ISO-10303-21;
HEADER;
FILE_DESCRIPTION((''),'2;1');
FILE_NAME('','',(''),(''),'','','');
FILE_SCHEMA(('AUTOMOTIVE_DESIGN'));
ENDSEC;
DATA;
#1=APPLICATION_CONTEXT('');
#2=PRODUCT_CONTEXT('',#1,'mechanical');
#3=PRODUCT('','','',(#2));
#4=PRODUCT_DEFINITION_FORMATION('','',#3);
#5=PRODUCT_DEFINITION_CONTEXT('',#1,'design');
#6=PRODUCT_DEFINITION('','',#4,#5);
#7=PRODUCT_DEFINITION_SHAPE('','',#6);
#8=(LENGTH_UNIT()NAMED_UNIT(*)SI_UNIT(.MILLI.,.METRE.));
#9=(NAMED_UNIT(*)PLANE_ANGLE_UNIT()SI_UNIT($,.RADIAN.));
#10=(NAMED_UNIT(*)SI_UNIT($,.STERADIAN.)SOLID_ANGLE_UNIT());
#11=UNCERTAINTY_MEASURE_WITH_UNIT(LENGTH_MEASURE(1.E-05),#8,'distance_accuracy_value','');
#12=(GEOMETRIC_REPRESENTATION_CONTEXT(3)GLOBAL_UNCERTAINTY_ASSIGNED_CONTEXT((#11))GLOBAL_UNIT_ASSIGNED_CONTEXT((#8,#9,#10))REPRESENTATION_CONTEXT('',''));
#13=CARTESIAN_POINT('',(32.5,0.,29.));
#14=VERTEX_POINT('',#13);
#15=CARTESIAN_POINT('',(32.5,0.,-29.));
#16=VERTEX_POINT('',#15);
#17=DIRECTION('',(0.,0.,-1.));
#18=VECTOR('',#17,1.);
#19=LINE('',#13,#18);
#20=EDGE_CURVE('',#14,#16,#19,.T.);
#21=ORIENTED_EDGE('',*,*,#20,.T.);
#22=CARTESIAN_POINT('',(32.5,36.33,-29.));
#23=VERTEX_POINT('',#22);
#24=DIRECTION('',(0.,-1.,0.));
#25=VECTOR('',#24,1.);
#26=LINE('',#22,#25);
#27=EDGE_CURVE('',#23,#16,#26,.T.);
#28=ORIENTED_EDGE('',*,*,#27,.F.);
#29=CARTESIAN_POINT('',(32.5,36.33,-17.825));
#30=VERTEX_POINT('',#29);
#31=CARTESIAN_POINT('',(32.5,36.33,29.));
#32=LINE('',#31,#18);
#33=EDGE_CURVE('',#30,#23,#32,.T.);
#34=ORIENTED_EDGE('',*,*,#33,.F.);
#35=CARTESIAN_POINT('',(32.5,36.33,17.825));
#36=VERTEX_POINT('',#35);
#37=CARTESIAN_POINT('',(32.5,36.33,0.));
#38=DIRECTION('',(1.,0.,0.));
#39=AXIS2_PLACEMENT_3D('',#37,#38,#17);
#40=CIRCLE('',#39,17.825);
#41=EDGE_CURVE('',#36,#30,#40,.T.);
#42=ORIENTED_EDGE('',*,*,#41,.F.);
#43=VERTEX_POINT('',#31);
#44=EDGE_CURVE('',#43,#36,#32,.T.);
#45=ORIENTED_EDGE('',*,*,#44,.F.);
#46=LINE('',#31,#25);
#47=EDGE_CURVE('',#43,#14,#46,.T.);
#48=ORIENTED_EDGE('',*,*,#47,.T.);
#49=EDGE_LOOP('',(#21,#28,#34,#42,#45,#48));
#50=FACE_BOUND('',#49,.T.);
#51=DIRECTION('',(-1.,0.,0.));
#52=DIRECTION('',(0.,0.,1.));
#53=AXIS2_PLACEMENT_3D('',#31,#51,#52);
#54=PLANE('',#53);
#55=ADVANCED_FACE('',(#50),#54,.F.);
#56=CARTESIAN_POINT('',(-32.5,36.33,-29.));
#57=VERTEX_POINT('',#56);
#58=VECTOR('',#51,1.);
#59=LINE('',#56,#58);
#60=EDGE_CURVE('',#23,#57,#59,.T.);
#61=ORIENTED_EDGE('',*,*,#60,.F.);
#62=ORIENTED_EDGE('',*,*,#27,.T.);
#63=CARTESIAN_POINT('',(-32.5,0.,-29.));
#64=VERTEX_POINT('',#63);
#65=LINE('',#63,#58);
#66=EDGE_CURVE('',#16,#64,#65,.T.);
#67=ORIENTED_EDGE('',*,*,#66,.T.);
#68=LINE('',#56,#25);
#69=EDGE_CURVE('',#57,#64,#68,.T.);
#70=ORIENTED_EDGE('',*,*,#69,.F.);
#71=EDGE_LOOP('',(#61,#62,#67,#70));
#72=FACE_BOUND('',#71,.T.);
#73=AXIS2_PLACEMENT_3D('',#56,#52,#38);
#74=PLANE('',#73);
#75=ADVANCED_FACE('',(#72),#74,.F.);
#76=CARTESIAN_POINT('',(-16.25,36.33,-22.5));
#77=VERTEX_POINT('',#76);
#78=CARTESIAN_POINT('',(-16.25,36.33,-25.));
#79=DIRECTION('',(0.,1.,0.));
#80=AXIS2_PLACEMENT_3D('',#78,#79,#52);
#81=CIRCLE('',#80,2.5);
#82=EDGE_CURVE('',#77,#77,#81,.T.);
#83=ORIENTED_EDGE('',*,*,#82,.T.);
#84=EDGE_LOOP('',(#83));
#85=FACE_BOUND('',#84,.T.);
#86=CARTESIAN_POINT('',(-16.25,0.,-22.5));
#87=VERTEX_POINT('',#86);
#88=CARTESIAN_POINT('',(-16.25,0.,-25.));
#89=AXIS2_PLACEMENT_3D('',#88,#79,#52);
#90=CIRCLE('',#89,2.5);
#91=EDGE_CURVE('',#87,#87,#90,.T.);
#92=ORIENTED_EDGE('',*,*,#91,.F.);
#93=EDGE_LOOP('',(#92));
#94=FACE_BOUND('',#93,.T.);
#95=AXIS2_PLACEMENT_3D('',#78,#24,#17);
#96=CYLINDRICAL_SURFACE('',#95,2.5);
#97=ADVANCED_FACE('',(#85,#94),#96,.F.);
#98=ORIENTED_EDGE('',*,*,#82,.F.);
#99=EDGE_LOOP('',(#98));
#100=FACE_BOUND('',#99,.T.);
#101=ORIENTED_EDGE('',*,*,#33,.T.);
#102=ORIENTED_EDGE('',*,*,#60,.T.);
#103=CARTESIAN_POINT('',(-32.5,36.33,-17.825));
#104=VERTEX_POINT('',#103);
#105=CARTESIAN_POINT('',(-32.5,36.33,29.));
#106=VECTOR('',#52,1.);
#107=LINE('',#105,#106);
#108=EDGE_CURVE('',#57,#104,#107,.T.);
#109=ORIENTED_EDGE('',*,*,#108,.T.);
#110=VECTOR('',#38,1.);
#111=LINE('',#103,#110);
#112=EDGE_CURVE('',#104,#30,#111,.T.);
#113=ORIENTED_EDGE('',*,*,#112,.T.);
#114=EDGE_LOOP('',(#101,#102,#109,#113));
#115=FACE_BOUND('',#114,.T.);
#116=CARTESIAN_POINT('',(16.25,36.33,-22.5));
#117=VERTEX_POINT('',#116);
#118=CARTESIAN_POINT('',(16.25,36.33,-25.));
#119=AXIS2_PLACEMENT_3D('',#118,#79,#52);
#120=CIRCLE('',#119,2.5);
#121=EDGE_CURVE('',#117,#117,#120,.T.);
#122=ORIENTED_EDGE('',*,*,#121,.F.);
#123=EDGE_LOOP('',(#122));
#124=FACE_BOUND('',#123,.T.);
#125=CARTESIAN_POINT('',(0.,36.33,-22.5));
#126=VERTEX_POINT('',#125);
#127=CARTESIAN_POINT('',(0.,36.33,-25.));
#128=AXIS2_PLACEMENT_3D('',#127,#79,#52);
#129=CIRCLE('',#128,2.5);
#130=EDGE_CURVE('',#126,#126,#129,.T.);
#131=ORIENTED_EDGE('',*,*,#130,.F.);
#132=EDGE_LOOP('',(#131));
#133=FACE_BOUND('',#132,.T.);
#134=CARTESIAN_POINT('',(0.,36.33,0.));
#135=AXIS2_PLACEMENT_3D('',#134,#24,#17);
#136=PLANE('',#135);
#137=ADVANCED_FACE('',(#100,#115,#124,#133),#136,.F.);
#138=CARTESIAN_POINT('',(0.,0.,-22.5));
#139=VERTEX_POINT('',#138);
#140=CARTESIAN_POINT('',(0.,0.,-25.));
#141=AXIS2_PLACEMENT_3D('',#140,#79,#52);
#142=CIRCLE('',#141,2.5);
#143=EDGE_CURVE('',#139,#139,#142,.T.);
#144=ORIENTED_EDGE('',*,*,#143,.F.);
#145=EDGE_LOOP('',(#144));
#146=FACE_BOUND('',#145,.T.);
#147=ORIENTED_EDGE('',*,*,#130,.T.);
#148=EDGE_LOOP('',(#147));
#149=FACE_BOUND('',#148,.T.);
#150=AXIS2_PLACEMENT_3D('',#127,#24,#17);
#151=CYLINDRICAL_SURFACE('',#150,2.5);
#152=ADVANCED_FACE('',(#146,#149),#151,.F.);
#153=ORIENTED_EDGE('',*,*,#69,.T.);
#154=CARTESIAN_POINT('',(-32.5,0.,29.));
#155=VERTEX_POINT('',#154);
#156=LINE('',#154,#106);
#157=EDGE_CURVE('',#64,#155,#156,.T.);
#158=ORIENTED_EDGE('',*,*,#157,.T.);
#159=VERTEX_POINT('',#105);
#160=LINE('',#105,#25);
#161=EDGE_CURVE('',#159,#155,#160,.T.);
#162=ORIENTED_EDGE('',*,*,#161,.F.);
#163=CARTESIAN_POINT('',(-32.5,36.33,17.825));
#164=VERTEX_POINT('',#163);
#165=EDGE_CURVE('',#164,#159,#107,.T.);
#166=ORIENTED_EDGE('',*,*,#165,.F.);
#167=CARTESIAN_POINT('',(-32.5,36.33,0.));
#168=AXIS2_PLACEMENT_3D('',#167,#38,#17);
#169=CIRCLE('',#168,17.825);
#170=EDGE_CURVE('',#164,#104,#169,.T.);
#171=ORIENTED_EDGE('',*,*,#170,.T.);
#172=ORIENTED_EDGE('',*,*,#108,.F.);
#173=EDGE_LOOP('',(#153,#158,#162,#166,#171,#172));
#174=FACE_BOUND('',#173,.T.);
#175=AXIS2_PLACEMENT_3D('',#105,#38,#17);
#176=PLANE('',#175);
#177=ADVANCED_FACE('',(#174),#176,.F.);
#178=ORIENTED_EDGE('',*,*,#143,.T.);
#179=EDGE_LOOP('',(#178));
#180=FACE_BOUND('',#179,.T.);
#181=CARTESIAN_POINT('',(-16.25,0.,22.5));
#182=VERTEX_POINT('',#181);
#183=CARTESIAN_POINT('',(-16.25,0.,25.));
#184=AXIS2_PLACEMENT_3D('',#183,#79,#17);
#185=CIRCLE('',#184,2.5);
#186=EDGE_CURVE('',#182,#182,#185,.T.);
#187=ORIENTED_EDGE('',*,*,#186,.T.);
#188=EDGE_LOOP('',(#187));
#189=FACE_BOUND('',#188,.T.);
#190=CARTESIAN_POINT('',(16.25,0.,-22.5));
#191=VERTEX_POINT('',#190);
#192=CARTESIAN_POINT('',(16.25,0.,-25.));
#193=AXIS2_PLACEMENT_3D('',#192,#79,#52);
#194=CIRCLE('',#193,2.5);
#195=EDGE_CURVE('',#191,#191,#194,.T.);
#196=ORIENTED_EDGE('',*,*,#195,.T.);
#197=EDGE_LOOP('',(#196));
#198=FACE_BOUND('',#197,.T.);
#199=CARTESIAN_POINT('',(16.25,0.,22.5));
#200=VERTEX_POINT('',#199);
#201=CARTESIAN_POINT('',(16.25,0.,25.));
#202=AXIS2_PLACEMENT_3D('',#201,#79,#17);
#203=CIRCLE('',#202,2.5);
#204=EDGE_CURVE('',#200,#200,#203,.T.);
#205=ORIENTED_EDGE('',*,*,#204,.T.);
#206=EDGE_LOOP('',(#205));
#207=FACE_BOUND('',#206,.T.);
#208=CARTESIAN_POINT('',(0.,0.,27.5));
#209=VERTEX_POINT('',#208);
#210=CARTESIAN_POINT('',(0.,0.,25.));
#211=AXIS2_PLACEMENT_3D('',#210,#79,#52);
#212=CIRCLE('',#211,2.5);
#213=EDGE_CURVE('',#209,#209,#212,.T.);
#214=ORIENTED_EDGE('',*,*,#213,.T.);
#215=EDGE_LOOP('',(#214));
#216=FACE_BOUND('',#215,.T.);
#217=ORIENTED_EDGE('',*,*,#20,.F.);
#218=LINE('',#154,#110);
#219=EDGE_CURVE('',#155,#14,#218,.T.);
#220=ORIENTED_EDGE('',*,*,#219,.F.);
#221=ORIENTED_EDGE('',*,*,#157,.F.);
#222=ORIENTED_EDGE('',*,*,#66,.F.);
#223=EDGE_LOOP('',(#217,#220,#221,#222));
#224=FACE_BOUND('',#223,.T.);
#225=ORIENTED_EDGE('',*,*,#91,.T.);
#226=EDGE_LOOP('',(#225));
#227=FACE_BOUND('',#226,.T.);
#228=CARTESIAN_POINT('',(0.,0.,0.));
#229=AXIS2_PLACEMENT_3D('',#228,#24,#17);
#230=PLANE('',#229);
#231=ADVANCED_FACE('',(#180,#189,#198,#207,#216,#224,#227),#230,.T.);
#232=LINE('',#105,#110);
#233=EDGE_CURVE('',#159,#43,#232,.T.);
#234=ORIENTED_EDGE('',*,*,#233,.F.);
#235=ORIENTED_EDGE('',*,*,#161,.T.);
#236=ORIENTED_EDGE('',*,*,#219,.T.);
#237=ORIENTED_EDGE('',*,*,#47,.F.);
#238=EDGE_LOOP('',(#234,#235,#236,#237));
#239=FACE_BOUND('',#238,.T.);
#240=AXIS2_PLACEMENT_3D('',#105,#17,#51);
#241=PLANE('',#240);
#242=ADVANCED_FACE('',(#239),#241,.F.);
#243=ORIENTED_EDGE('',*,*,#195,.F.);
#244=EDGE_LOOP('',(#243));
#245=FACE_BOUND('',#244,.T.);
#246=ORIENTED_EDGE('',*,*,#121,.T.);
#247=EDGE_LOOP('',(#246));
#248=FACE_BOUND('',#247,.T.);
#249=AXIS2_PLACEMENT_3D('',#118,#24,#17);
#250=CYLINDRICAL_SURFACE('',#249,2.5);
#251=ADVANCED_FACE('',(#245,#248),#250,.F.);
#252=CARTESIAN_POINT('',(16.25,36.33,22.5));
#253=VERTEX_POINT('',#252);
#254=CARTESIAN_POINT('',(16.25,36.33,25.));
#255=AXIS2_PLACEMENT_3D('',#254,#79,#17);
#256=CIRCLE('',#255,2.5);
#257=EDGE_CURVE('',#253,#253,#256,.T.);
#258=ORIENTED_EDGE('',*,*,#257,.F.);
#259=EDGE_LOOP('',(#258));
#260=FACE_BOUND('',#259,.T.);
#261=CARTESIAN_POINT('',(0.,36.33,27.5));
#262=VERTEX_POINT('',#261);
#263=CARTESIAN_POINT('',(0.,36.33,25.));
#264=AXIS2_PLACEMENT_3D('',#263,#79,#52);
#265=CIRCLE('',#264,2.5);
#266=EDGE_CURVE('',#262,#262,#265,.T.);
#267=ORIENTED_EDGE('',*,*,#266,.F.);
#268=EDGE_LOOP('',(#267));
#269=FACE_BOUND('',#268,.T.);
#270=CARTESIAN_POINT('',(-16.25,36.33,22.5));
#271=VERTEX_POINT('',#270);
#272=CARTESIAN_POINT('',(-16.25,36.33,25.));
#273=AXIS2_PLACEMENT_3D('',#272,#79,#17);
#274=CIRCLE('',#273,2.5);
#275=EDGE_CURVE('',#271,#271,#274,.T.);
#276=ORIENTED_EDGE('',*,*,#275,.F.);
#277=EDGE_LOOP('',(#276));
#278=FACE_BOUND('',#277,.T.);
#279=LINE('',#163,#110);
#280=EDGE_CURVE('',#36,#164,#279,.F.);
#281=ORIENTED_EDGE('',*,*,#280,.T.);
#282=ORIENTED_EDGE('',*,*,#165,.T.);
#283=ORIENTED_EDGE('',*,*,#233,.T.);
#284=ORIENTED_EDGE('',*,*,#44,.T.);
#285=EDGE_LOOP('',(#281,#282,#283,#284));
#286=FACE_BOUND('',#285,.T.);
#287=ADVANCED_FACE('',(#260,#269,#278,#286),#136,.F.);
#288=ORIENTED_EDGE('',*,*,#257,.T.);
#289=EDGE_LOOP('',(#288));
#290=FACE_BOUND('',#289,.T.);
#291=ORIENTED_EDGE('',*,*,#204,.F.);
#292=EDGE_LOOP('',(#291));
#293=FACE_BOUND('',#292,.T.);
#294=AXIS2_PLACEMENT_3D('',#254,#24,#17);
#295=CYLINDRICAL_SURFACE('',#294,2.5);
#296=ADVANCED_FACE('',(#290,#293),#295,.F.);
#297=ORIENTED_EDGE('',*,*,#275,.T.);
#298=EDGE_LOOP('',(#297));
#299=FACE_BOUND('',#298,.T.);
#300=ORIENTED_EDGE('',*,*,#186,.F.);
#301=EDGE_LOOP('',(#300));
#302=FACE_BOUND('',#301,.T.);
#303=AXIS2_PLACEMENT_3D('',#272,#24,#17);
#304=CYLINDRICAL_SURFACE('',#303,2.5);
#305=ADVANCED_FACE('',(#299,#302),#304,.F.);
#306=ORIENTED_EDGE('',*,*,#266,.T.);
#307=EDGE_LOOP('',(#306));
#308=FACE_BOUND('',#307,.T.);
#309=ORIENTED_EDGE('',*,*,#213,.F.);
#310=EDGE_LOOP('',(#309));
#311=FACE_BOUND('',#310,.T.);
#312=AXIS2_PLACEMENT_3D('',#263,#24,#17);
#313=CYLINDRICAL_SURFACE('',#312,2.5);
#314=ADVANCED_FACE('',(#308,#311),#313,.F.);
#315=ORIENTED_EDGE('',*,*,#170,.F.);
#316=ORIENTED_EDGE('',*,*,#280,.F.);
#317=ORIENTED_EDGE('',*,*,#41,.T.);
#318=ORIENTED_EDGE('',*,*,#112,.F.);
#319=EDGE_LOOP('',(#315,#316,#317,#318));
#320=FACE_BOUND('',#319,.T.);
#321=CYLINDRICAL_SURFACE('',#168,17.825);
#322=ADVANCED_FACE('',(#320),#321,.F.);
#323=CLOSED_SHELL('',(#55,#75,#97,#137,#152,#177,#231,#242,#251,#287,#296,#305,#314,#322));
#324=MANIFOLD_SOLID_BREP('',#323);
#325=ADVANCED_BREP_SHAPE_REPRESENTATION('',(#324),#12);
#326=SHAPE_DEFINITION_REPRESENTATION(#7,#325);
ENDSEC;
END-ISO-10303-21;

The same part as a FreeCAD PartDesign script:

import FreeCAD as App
import Part
import Sketcher

doc = App.newDocument("Part")
body = doc.addObject("PartDesign::Body", "Body")

# Sketch on XZ plane
sketch1 = body.newObject("Sketcher::SketchObject", "Sketch")
sketch1.AttachmentSupport = (doc.getObject("XZ_Plane"), [""])
sketch1.MapMode = "FlatFace"
sketch1.addGeometry(Part.LineSegment(App.Vector(-32.5, -29, 0), App.Vector(-32.5, 29, 0)), False)
sketch1.addGeometry(Part.LineSegment(App.Vector(-32.5, 29, 0), App.Vector(32.5, 29, 0)), False)
sketch1.addGeometry(Part.LineSegment(App.Vector(32.5, 29, 0), App.Vector(32.5, -29, 0)), False)
sketch1.addGeometry(Part.LineSegment(App.Vector(32.5, -29, 0), App.Vector(-32.5, -29, 0)), False)
sketch1.addGeometry(Part.Circle(App.Vector(-16.2, 25, 0), App.Vector(0, 0, 1), 2.5), False)
sketch1.addGeometry(Part.Circle(App.Vector(0, 25, 0), App.Vector(0, 0, 1), 2.5), False)
sketch1.addGeometry(Part.Circle(App.Vector(16.2, 25, 0), App.Vector(0, 0, 1), 2.5), False)
sketch1.addGeometry(Part.Circle(App.Vector(-16.2, -25, 0), App.Vector(0, 0, 1), 2.5), False)
sketch1.addGeometry(Part.Circle(App.Vector(0, -25, 0), App.Vector(0, 0, 1), 2.5), False)
sketch1.addGeometry(Part.Circle(App.Vector(16.2, -25, 0), App.Vector(0, 0, 1), 2.5), False)
sketch1.addConstraint(Sketcher.Constraint("Coincident", 0, 2, 1, 1))
sketch1.addConstraint(Sketcher.Constraint("Coincident", 1, 2, 2, 1))
sketch1.addConstraint(Sketcher.Constraint("Coincident", 2, 2, 3, 1))
sketch1.addConstraint(Sketcher.Constraint("Coincident", 3, 2, 0, 1))
sketch1.addConstraint(Sketcher.Constraint("Vertical", 0))
sketch1.addConstraint(Sketcher.Constraint("Horizontal", 1))
sketch1.addConstraint(Sketcher.Constraint("Vertical", 2))
sketch1.addConstraint(Sketcher.Constraint("Horizontal", 3))
sketch1.addConstraint(Sketcher.Constraint("Equal", 4, 5))
sketch1.addConstraint(Sketcher.Constraint("Equal", 5, 6))
sketch1.addConstraint(Sketcher.Constraint("Equal", 6, 7))
sketch1.addConstraint(Sketcher.Constraint("Equal", 7, 8))
sketch1.addConstraint(Sketcher.Constraint("Equal", 8, 9))
sketch1.addConstraint(Sketcher.Constraint("Symmetric", 6, 3, 7, 3, -1, 1))
sketch1.addConstraint(Sketcher.Constraint("Symmetric", 5, 3, 8, 3, -1, 1))
sketch1.addConstraint(Sketcher.Constraint("Symmetric", 4, 3, 9, 3, -1, 1))
sketch1.addConstraint(Sketcher.Constraint("Symmetric", 0, 2, 2, 2, -1, 1))
sketch1.addConstraint(Sketcher.Constraint("Symmetric", 4, 3, 6, 3, -2))
sketch1.addConstraint(Sketcher.Constraint("PointOnObject", 5, 3, -2))
sketch1.addConstraint(Sketcher.Constraint("Horizontal", 4, 3, 5, 3))
sketch1.addConstraint(Sketcher.Constraint("Diameter", 4, 5.0))
sketch1.addConstraint(Sketcher.Constraint("DistanceX", 1, 1, 1, 2, 65.0))
sketch1.addConstraint(Sketcher.Constraint("DistanceY", 0, 1, 0, 2, 58.0))
sketch1.addConstraint(Sketcher.Constraint("DistanceY", -1, 1, 4, 3, 25.0))
sketch1.addConstraint(Sketcher.Constraint("DistanceX", 4, 3, 6, 3, 32.5))
pad1 = body.newObject("PartDesign::Pad", "Pad")
pad1.Profile = sketch1
pad1.Length = 36.33
pad1.Reversed = True

# Sketch on YZ plane
sketch2 = body.newObject("Sketcher::SketchObject", "Sketch001")
sketch2.AttachmentSupport = (doc.getObject("YZ_Plane"), [""])
sketch2.MapMode = "FlatFace"
sketch2.AttachmentOffset = App.Placement(App.Vector(0, 0, 32.5), App.Rotation())
sketch2.addGeometry(Part.Circle(App.Vector(36, 0, 0), App.Vector(0, 0, 1), 18), False)
sketch2.addConstraint(Sketcher.Constraint("PointOnObject", 0, 3, -1))
sketch2.addConstraint(Sketcher.Constraint("Diameter", 0, 35.65))
sketch2.addConstraint(Sketcher.Constraint("DistanceX", -1, 1, 0, 3, 36.33))
pocket1 = body.newObject("PartDesign::Pocket", "Pocket")
pocket1.Profile = sketch2
pocket1.Type = "ThroughAll"

doc.recompute()
